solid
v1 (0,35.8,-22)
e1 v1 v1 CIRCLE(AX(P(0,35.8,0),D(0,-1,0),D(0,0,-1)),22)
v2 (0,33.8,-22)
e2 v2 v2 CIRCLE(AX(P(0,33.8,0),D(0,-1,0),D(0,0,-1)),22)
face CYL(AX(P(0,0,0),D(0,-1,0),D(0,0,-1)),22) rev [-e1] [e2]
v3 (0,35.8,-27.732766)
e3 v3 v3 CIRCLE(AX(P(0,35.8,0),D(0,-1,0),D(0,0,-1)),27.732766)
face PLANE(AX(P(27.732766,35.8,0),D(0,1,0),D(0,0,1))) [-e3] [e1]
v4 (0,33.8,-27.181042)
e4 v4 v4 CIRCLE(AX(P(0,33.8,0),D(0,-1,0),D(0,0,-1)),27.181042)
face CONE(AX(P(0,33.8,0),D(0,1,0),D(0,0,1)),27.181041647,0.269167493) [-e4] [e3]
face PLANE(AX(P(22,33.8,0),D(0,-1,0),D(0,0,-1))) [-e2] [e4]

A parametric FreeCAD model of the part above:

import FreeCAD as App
import Part
import Sketcher
from FreeCAD import Vector
Q = App.Units.Quantity

doc = App.newDocument("Part")
params = doc.addObject("Spreadsheet::Sheet", "Params")
for row, (alias, value) in enumerate([
    ("sketch1_height", "2 mm"),
    ("revolution_angle", "360 deg"),
], start=1):
    params.set(f"A{row}", alias)
    params.set(f"B{row}", "=" + value)
    params.setAlias(f"B{row}", alias)

body = doc.addObject("PartDesign::Body", "Body")

# Sketch on XY plane
sketch1 = body.newObject("Sketcher::SketchObject", "Sketch")
sketch1.AttachmentSupport = (doc.getObject("XY_Plane"), [""])
sketch1.MapMode = "FlatFace"
sketch1.addGeometry(Part.LineSegment(Vector(22, 33.8, 0), Vector(27.181042, 33.8, 0)), False)
sketch1.addGeometry(Part.LineSegment(Vector(27.181042, 33.8, 0), Vector(27.732766, 35.8, 0)), False)
sketch1.addGeometry(Part.LineSegment(Vector(27.732766, 35.8, 0), Vector(22, 35.8, 0)), False)
sketch1.addGeometry(Part.LineSegment(Vector(22, 35.8, 0), Vector(22, 33.8, 0)), False)
sketch1.addConstraint(Sketcher.Constraint("Coincident", 0, 2, 1, 1))
sketch1.addConstraint(Sketcher.Constraint("Coincident", 1, 2, 2, 1))
sketch1.addConstraint(Sketcher.Constraint("Coincident", 2, 2, 3, 1))
sketch1.addConstraint(Sketcher.Constraint("Coincident", 3, 2, 0, 1))
sketch1.addConstraint(Sketcher.Constraint("Horizontal", 0))
sketch1.addConstraint(Sketcher.Constraint("Horizontal", 2))
sketch1.addConstraint(Sketcher.Constraint("Vertical", 3))
sketch1.addConstraint(Sketcher.Constraint("DistanceY", 3, 2, 3, 1, Q("2 mm")))
sketch1.addConstraint(Sketcher.Constraint("DistanceX", -1, 1, 2, 2, Q("22 mm")))
sketch1.addConstraint(Sketcher.Constraint("DistanceY", -1, 1, 0, 2, Q("33.8 mm")))
sketch1.addConstraint(Sketcher.Constraint("DistanceX", 0, 1, 0, 2, Q("5.181042 mm")))
sketch1.addConstraint(Sketcher.Constraint("DistanceX", 2, 2, 2, 1, Q("5.732766 mm")))
sketch1.setExpression("Constraints[7]", "Params.sketch1_height")
revolution = body.newObject("PartDesign::Revolution", "Revolution")
revolution.Profile = sketch1
revolution.ReferenceAxis = (sketch1, ["V_Axis"])
revolution.setExpression("Angle", "Params.revolution_angle")

doc.recompute()
